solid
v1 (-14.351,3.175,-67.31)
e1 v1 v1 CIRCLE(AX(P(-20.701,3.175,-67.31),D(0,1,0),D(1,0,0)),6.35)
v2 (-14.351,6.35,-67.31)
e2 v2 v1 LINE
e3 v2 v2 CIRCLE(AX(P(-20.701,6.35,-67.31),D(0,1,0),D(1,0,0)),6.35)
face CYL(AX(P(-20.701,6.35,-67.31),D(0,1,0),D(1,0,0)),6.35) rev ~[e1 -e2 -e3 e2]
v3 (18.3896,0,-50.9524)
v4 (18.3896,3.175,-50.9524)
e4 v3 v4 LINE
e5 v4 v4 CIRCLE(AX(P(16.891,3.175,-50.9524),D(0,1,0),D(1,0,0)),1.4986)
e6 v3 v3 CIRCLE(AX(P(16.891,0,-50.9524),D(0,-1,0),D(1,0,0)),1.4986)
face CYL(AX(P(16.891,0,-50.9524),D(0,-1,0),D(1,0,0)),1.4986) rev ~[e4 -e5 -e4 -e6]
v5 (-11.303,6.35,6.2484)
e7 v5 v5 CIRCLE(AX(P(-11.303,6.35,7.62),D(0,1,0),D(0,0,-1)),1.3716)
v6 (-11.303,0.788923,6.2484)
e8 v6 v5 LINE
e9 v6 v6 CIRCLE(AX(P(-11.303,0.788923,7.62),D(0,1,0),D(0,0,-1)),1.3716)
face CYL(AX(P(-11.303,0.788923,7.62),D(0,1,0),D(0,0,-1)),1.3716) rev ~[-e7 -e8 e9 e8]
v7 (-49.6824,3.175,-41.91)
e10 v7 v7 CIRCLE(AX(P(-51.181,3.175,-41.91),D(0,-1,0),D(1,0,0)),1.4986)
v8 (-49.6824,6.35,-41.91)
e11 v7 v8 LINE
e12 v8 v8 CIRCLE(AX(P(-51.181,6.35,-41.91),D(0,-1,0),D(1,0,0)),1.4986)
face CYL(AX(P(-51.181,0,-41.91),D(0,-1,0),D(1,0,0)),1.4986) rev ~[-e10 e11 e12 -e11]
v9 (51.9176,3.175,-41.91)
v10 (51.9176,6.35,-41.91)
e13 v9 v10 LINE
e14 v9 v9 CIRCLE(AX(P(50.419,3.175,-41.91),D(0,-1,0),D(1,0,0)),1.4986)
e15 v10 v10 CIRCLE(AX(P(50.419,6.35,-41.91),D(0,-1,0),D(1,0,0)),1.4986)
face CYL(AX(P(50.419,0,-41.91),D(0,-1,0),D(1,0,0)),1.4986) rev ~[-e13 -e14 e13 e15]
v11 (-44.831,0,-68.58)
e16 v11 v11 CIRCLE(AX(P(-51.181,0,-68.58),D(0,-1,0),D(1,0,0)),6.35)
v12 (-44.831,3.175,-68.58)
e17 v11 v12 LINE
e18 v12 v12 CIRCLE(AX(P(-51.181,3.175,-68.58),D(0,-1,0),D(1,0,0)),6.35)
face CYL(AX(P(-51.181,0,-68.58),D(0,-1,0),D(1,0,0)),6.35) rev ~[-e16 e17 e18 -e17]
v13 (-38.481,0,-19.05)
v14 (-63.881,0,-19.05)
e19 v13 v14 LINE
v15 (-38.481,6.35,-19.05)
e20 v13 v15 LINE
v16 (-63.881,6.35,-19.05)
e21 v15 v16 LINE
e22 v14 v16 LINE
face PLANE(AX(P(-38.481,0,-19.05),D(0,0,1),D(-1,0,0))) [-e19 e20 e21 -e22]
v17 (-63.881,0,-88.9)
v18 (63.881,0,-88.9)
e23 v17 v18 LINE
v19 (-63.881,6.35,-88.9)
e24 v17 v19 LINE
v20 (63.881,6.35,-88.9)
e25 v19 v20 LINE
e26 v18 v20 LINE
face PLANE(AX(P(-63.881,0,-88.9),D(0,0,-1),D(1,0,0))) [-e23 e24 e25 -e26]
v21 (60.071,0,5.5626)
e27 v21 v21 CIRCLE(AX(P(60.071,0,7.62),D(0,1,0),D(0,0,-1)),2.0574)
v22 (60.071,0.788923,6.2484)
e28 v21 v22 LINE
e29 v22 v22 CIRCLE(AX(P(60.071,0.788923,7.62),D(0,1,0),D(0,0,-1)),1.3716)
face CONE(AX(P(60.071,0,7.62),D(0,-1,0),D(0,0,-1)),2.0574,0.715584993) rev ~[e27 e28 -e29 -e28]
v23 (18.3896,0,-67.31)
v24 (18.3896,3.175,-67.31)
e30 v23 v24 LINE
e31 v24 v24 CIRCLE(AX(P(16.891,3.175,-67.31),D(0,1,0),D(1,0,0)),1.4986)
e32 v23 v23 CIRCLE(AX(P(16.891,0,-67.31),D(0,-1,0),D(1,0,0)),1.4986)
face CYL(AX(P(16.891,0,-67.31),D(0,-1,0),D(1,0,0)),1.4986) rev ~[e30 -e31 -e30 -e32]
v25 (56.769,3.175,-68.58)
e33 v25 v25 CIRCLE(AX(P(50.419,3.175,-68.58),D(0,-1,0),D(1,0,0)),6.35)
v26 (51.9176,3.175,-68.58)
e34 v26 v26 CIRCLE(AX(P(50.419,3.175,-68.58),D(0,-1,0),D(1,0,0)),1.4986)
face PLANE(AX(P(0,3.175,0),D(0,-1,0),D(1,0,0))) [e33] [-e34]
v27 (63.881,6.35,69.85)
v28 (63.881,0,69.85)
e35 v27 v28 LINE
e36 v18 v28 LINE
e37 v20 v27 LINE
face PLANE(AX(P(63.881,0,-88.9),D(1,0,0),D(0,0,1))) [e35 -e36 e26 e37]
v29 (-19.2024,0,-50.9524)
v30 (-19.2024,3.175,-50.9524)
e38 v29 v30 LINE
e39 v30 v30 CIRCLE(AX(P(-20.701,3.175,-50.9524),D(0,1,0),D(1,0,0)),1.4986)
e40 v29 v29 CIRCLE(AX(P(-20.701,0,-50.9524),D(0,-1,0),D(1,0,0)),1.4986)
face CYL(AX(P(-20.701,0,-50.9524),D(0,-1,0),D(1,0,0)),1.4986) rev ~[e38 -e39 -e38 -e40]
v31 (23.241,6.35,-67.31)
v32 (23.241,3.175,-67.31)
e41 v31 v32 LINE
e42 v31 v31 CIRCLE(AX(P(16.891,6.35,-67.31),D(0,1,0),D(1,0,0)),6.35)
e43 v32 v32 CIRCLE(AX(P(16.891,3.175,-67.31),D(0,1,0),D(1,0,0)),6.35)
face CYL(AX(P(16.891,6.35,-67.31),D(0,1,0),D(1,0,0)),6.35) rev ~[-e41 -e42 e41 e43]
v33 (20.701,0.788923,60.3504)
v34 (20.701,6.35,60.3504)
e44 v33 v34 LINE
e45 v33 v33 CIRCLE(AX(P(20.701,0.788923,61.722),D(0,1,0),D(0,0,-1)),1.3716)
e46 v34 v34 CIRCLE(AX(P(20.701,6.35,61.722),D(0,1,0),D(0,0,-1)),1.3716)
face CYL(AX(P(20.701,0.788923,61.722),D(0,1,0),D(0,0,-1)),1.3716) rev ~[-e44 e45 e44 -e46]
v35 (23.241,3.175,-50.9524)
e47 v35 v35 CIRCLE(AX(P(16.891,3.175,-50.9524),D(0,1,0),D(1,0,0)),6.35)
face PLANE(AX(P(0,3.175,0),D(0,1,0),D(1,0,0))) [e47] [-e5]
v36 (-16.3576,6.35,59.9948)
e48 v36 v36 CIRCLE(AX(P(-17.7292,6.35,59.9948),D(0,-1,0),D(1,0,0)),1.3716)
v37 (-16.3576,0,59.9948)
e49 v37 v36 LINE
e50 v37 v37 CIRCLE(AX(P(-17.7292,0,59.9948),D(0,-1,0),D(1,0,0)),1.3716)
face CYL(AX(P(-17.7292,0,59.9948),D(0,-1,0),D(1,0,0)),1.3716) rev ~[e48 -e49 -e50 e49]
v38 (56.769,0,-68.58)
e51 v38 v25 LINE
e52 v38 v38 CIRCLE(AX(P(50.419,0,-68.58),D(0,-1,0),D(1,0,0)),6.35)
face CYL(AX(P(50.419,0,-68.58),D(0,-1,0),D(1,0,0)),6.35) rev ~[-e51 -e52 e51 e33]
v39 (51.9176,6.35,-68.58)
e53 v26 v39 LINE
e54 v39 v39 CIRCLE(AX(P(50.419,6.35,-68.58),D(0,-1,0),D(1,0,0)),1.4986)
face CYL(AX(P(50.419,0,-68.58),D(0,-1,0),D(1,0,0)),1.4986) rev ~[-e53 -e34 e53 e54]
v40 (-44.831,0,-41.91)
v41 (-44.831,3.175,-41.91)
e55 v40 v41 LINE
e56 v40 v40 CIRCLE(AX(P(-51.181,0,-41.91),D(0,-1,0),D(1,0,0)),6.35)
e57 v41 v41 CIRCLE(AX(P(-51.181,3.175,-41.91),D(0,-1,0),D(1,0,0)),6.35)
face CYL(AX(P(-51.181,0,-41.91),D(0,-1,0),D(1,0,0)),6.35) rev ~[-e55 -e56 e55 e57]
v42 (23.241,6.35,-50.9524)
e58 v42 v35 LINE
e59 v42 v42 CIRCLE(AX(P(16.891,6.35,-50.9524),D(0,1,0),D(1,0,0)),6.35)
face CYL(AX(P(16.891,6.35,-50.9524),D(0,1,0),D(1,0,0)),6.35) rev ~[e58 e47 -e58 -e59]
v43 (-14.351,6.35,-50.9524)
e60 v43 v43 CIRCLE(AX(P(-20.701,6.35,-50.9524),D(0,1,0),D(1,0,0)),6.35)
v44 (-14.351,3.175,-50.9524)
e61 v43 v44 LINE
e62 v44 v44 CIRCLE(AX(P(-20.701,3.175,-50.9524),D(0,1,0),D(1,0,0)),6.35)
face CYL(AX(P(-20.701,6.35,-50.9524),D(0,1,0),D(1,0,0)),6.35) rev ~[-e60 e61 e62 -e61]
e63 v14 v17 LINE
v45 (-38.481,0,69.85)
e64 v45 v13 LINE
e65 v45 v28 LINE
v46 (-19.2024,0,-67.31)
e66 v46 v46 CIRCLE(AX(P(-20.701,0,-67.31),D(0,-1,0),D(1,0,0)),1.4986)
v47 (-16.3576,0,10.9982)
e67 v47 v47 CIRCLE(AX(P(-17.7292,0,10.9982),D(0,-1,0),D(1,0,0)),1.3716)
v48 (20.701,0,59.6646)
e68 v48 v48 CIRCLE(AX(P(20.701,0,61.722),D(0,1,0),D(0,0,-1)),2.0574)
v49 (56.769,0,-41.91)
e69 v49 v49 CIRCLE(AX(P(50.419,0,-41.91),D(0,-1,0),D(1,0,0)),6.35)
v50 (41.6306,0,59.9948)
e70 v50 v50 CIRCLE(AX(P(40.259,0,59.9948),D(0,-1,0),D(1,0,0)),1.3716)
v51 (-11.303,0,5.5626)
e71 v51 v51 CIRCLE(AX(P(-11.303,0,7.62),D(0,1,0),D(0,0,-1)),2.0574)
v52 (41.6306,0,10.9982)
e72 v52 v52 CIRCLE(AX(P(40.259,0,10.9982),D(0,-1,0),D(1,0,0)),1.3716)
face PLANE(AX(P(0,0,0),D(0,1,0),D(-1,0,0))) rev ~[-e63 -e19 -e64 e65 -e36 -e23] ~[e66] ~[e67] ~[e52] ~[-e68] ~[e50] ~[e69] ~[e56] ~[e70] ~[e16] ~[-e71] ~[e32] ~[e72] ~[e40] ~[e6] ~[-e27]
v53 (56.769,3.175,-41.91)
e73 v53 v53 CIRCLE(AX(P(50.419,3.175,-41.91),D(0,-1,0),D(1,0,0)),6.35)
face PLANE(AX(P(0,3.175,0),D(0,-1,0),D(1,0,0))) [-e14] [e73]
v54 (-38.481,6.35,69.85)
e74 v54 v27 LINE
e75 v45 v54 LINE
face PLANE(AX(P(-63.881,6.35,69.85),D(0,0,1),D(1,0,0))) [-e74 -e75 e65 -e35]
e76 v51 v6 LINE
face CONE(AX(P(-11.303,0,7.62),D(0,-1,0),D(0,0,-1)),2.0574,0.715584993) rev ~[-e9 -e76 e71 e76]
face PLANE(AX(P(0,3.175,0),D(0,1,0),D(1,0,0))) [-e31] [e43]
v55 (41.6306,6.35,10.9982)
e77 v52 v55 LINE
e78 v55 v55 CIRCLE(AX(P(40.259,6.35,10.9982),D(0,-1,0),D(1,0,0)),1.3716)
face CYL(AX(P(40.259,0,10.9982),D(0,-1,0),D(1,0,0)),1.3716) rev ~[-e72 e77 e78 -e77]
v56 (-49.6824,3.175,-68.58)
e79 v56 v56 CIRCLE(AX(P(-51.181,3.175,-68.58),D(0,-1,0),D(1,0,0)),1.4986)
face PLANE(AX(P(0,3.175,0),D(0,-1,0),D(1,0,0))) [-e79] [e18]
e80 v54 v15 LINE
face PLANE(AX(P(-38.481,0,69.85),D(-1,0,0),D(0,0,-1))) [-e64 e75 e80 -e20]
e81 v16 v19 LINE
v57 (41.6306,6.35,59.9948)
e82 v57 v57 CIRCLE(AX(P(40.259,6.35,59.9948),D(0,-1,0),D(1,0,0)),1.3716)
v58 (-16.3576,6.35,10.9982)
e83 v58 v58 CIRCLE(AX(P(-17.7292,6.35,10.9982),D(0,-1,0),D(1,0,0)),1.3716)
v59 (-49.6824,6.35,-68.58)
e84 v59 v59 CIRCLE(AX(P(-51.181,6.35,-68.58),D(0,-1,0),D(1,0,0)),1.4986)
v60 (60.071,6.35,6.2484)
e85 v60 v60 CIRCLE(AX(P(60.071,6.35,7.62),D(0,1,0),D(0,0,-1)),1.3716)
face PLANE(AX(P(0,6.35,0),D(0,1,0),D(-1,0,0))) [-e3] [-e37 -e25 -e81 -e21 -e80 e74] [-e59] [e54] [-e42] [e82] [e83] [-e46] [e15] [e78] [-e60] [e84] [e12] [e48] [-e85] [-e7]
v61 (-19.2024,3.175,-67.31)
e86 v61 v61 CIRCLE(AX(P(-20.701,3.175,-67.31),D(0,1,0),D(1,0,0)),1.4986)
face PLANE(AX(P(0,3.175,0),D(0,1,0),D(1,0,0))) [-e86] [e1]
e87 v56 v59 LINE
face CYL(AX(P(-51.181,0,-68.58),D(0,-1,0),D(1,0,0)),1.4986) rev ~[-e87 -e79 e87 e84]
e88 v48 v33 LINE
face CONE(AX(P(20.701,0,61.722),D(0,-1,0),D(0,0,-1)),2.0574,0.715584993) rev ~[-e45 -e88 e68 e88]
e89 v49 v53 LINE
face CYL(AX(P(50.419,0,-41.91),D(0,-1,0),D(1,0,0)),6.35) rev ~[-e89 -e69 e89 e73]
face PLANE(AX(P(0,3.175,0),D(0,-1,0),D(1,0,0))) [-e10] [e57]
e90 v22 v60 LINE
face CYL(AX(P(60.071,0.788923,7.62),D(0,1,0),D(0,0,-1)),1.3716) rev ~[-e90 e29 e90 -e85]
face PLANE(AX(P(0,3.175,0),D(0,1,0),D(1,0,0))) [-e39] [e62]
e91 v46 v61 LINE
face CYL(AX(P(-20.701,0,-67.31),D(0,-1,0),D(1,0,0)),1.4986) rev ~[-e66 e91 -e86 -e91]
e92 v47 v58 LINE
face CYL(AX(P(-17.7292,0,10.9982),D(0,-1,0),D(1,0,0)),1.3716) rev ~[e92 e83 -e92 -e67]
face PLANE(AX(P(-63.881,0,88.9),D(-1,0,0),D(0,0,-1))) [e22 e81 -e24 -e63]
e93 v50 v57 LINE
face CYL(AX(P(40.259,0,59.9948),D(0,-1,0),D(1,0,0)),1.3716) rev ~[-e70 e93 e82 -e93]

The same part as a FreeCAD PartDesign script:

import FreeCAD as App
import Part
import Sketcher

V = App.Vector
Q = App.Units.Quantity


def add_polygon(sketch, points):
    """Adds a closed chain of lines whose ends are joined by coincident constraints."""
    first, n = sketch.GeometryCount, len(points)
    for a, b in zip(points, points[1:] + points[:1]):
        sketch.addGeometry(Part.LineSegment(App.Vector(*a, 0), App.Vector(*b, 0)), False)
    for i in range(n):
        sketch.addConstraint(Sketcher.Constraint("Coincident", first + i, 2, first + (i + 1) % n, 1))

doc = App.newDocument("Part")
body = doc.addObject("PartDesign::Body", "Body")

# Sketch on XZ plane
sketch1 = body.newObject("Sketcher::SketchObject", "Sketch")
sketch1.AttachmentSupport = (doc.getObject("XZ_Plane"), [""])
sketch1.MapMode = "FlatFace"
add_polygon(sketch1, [(-63.881, 88.9), (63.881, 88.9), (63.881, -88.9), (-63.881, -88.9)])  # lines 0-3
sketch1.addConstraint([
    Sketcher.Constraint("Horizontal", 0),
    Sketcher.Constraint("Vertical", 1),
    Sketcher.Constraint("Horizontal", 2),
    Sketcher.Constraint("Vertical", 3),
    Sketcher.Constraint("Symmetric", 0, 2, 2, 2, -1, 1),
    Sketcher.Constraint("DistanceY", 1, 2, 1, 1, Q("7 in")),
    Sketcher.Constraint("DistanceX", 0, 1, 0, 2, Q("5.03 in")),
])
pad1 = body.newObject("PartDesign::Pad", "Pad")
pad1.Profile = sketch1
pad1.Length = Q("0.25 in")
pad1.Reversed = True

# Sketch on XZ plane
sketch2 = body.newObject("Sketcher::SketchObject", "Sketch001")
sketch2.AttachmentSupport = (doc.getObject("XZ_Plane"), [""])
sketch2.MapMode = "FlatFace"
add_polygon(sketch2, [(63.881, 76.2), (63.881, 88.9), (-63.881, 88.9), (-63.881, 76.2)])  # lines 0-3
sketch2.addConstraint([
    Sketcher.Constraint("Vertical", 0),
    Sketcher.Constraint("Horizontal", 1),
    Sketcher.Constraint("Vertical", 2),
    Sketcher.Constraint("Horizontal", 3),
    Sketcher.Constraint("DistanceY", 0, 1, 0, 2, Q("0.5 in")),
    Sketcher.Constraint("DistanceY", -1, 1, 2, 2, Q("3 in")),
    Sketcher.Constraint("DistanceX", 1, 2, 1, 1, Q("5.03 in")),
    Sketcher.Constraint("DistanceX", -1, 1, 0, 2, Q("2.515 in")),
])
pocket1 = body.newObject("PartDesign::Pocket", "Pocket")
pocket1.Profile = sketch2
pocket1.Length = Q("0.25 in")

# Sketch on XZ plane
sketch3 = body.newObject("Sketcher::SketchObject", "Sketch002")
sketch3.AttachmentSupport = (doc.getObject("XZ_Plane"), [""])
sketch3.MapMode = "FlatFace"
sketch3.AttachmentOffset = App.Placement(V(0, 0, -0.25 * 25.4), App.Rotation())
add_polygon(sketch3, [(-63.881, 69.85), (-63.881, 76.2), (63.881, 76.2), (63.881, 69.85)])  # lines 0-3
sketch3.addConstraint([
    Sketcher.Constraint("Vertical", 0),
    Sketcher.Constraint("Horizontal", 1),
    Sketcher.Constraint("Vertical", 2),
    Sketcher.Constraint("Horizontal", 3),
    Sketcher.Constraint("DistanceY", 0, 1, 0, 2, Q("0.25 in")),
    Sketcher.Constraint("DistanceY", -1, 1, 0, 2, Q("3 in")),
    Sketcher.Constraint("DistanceX", 1, 1, 1, 2, Q("5.03 in")),
    Sketcher.Constraint("DistanceX", 0, 2, -1, 1, Q("2.515 in")),
])
pocket2 = body.newObject("PartDesign::Pocket", "Pocket001")
pocket2.Profile = sketch3
pocket2.Length = Q("1 in")
pocket2.Reversed = True

# Sketch on XZ plane
sketch4 = body.newObject("Sketcher::SketchObject", "Sketch003")
sketch4.AttachmentSupport = (doc.getObject("XZ_Plane"), [""])
sketch4.MapMode = "FlatFace"
sketch4.addGeometry([
    Part.Circle(V(-20.701, -67.31, 0), V(0, 0, 1), 1.4986),
    Part.Circle(V(-20.701, -50.9524, 0), V(0, 0, 1), 1.4986),
    Part.Circle(V(16.891, -50.9524, 0), V(0, 0, 1), 1.4986),
    Part.Circle(V(16.891, -67.31, 0), V(0, 0, 1), 1.4986),
], False)
sketch4.addConstraint([
    Sketcher.Constraint("Equal", 0, 1),
    Sketcher.Constraint("Equal", 1, 2),
    Sketcher.Constraint("Equal", 2, 3),
    Sketcher.Constraint("Horizontal", 1, 3, 2, 3),
    Sketcher.Constraint("Horizontal", 0, 3, 3, 3),
    Sketcher.Constraint("Vertical", 0, 3, 1, 3),
    Sketcher.Constraint("Vertical", 2, 3, 3, 3),
    Sketcher.Constraint("Diameter", 0, Q("0.118 in")),
    Sketcher.Constraint("DistanceY", 0, 3, -1, 1, Q("2.65 in")),
    Sketcher.Constraint("DistanceX", 1, 3, 2, 3, Q("1.48 in")),
    Sketcher.Constraint("DistanceX", 0, 3, -1, 1, Q("0.815 in")),
    Sketcher.Constraint("DistanceY", 1, 3, -1, 1, Q("2.006 in")),
])
pocket3 = body.newObject("PartDesign::Pocket", "Pocket002")
pocket3.Profile = sketch4
pocket3.Length = Q("1 in")

# Sketch on XZ plane
sketch5 = body.newObject("Sketcher::SketchObject", "Sketch004")
sketch5.AttachmentSupport = (doc.getObject("XZ_Plane"), [""])
sketch5.MapMode = "FlatFace"
sketch5.AttachmentOffset = App.Placement(V(0, 0, -0.25 * 25.4), App.Rotation())
sketch5.addGeometry([
    Part.Circle(V(-20.701, -67.31, 0), V(0, 0, 1), 6.35),  # 0
    Part.Circle(V(-20.701, -67.31, 0), V(0, 0, 1), 1.4986),  # 1
    Part.Circle(V(16.891, -67.31, 0), V(0, 0, 1), 6.35),  # 2
    Part.Circle(V(16.891, -67.31, 0), V(0, 0, 1), 1.4986),  # 3
    Part.Circle(V(16.891, -50.9524, 0), V(0, 0, 1), 6.35),  # 4
    Part.Circle(V(16.891, -50.9524, 0), V(0, 0, 1), 1.4986),  # 5
    Part.Circle(V(-20.701, -50.9524, 0), V(0, 0, 1), 6.35),  # 6
    Part.Circle(V(-20.701, -50.9524, 0), V(0, 0, 1), 1.4986),  # 7
], False)
sketch5.addConstraint([
    Sketcher.Constraint("Coincident", 1, 3, 0, 3),
    Sketcher.Constraint("Coincident", 3, 3, 2, 3),
    Sketcher.Constraint("Coincident", 5, 3, 4, 3),
    Sketcher.Constraint("Coincident", 7, 3, 6, 3),
    Sketcher.Constraint("Equal", 0, 2),
    Sketcher.Constraint("Equal", 1, 3),
    Sketcher.Constraint("Equal", 2, 4),
    Sketcher.Constraint("Equal", 3, 5),
    Sketcher.Constraint("Equal", 4, 6),
    Sketcher.Constraint("Equal", 5, 7),
    Sketcher.Constraint("Horizontal", 1, 3, 2, 3),
    Sketcher.Constraint("Horizontal", 5, 3, 6, 3),
    Sketcher.Constraint("Vertical", 3, 3, 4, 3),
    Sketcher.Constraint("Vertical", 1, 3, 6, 3),
    Sketcher.Constraint("Diameter", 0, Q("0.5 in")),
    Sketcher.Constraint("Diameter", 1, Q("0.118 in")),
    Sketcher.Constraint("DistanceY", 0, 3, -1, 1, Q("2.65 in")),
    Sketcher.Constraint("DistanceX", 0, 3, 2, 3, Q("1.48 in")),
    Sketcher.Constraint("DistanceX", 0, 3, -1, 1, Q("0.815 in")),
    Sketcher.Constraint("DistanceY", 4, 3, -1, 1, Q("2.006 in")),
])
pocket4 = body.newObject("PartDesign::Pocket", "Pocket003")
pocket4.Profile = sketch5
pocket4.Length = Q("0.125 in")
pocket4.Reversed = True

# Sketch on XZ plane
sketch6 = body.newObject("Sketcher::SketchObject", "Sketch005")
sketch6.AttachmentSupport = (doc.getObject("XZ_Plane"), [""])
sketch6.MapMode = "FlatFace"
sketch6.addGeometry([
    Part.Circle(V(-51.181, -41.91, 0), V(0, 0, 1), 1.4986),
    Part.Circle(V(50.419, -41.91, 0), V(0, 0, 1), 1.4986),
    Part.Circle(V(50.419, -68.58, 0), V(0, 0, 1), 1.4986),
    Part.Circle(V(-51.181, -68.58, 0), V(0, 0, 1), 1.4986),
], False)
sketch6.addConstraint([
    Sketcher.Constraint("Equal", 0, 1),
    Sketcher.Constraint("Equal", 1, 2),
    Sketcher.Constraint("Equal", 2, 3),
    Sketcher.Constraint("Horizontal", 0, 3, 1, 3),
    Sketcher.Constraint("Horizontal", 2, 3, 3, 3),
    Sketcher.Constraint("Vertical", 1, 3, 2, 3),
    Sketcher.Constraint("Vertical", 0, 3, 3, 3),
    Sketcher.Constraint("Diameter", 0, Q("0.118 in")),
    Sketcher.Constraint("DistanceX", 0, 3, 1, 3, Q("4 in")),
    Sketcher.Constraint("DistanceY", 2, 3, -1, 1, Q("2.7 in")),
    Sketcher.Constraint("DistanceY", 0, 3, -1, 1, Q("1.65 in")),
    Sketcher.Constraint("DistanceX", 0, 3, -1, 1, Q("2.015 in")),
])
pocket5 = body.newObject("PartDesign::Pocket", "Pocket004")
pocket5.Profile = sketch6
pocket5.Length = Q("0.25 in")

# Sketch on XZ plane
sketch7 = body.newObject("Sketcher::SketchObject", "Sketch006")
sketch7.AttachmentSupport = (doc.getObject("XZ_Plane"), [""])
sketch7.MapMode = "FlatFace"
sketch7.addGeometry([
    Part.Circle(V(-51.181, -41.91, 0), V(0, 0, 1), 6.35),  # 0
    Part.Circle(V(-51.181, -41.91, 0), V(0, 0, 1), 1.4986),  # 1
    Part.Circle(V(-51.181, -68.58, 0), V(0, 0, 1), 6.35),  # 2
    Part.Circle(V(-51.181, -68.58, 0), V(0, 0, 1), 1.4986),  # 3
    Part.Circle(V(50.419, -68.58, 0), V(0, 0, 1), 6.35),  # 4
    Part.Circle(V(50.419, -68.58, 0), V(0, 0, 1), 1.4986),  # 5
    Part.Circle(V(50.419, -41.91, 0), V(0, 0, 1), 6.35),  # 6
    Part.Circle(V(50.419, -41.91, 0), V(0, 0, 1), 1.4986),  # 7
], False)
sketch7.addConstraint([
    Sketcher.Constraint("Coincident", 1, 3, 0, 3),
    Sketcher.Constraint("Coincident", 3, 3, 2, 3),
    Sketcher.Constraint("Coincident", 5, 3, 4, 3),
    Sketcher.Constraint("Coincident", 7, 3, 6, 3),
    Sketcher.Constraint("Equal", 0, 2),
    Sketcher.Constraint("Equal", 1, 3),
    Sketcher.Constraint("Equal", 2, 4),
    Sketcher.Constraint("Equal", 3, 5),
    Sketcher.Constraint("Equal", 4, 6),
    Sketcher.Constraint("Equal", 5, 7),
    Sketcher.Constraint("Horizontal", 3, 3, 4, 3),
    Sketcher.Constraint("Horizontal", 1, 3, 6, 3),
    Sketcher.Constraint("Vertical", 1, 3, 2, 3),
    Sketcher.Constraint("Vertical", 5, 3, 6, 3),
    Sketcher.Constraint("Diameter", 0, Q("0.5 in")),
    Sketcher.Constraint("Diameter", 1, Q("0.118 in")),
    Sketcher.Constraint("DistanceX", 2, 3, 4, 3, Q("4 in")),
    Sketcher.Constraint("DistanceY", 2, 3, -1, 1, Q("2.7 in")),
    Sketcher.Constraint("DistanceY", 0, 3, -1, 1, Q("1.65 in")),
    Sketcher.Constraint("DistanceX", 0, 3, -1, 1, Q("2.015 in")),
])
pocket6 = body.newObject("PartDesign::Pocket", "Pocket005")
pocket6.Profile = sketch7
pocket6.Length = Q("0.125 in")

# Sketch on XZ plane
sketch8 = body.newObject("Sketcher::SketchObject", "Sketch007")
sketch8.AttachmentSupport = (doc.getObject("XZ_Plane"), [""])
sketch8.MapMode = "FlatFace"
add_polygon(sketch8, [(-63.881, 69.85), (-63.881, -19.05), (-38.481, -19.05), (-38.481, 69.85)])  # lines 0-3
sketch8.addConstraint([
    Sketcher.Constraint("Vertical", 0),
    Sketcher.Constraint("Horizontal", 1),
    Sketcher.Constraint("Vertical", 2),
    Sketcher.Constraint("Horizontal", 3),
    Sketcher.Constraint("DistanceX", 1, 1, 1, 2, Q("1 in")),
    Sketcher.Constraint("DistanceY", 0, 2, 0, 1, Q("3.5 in")),
    Sketcher.Constraint("DistanceY", 0, 2, -1, 1, Q("0.75 in")),
    Sketcher.Constraint("DistanceX", 0, 2, -1, 1, Q("2.515 in")),
])
pocket7 = body.newObject("PartDesign::Pocket", "Pocket006")
pocket7.Profile = sketch8
pocket7.Length = Q("0.25 in")

# Sketch on XZ plane
sketch9 = body.newObject("Sketcher::SketchObject", "Sketch008")
sketch9.AttachmentSupport = (doc.getObject("XZ_Plane"), [""])
sketch9.MapMode = "FlatFace"
sketch9.addGeometry([
    Part.Circle(V(40.259, 59.9948, 0), V(0, 0, 1), 1.3716),
    Part.Circle(V(-17.7292, 59.9948, 0), V(0, 0, 1), 1.3716),
    Part.Circle(V(-17.7292, 10.9982, 0), V(0, 0, 1), 1.3716),
    Part.Circle(V(40.259, 10.9982, 0), V(0, 0, 1), 1.3716),
], False)
sketch9.addConstraint([
    Sketcher.Constraint("Equal", 0, 1),
    Sketcher.Constraint("Equal", 1, 2),
    Sketcher.Constraint("Equal", 2, 3),
    Sketcher.Constraint("Horizontal", 0, 3, 1, 3),
    Sketcher.Constraint("Horizontal", 2, 3, 3, 3),
    Sketcher.Constraint("Vertical", 1, 3, 2, 3),
    Sketcher.Constraint("Vertical", 0, 3, 3, 3),
    Sketcher.Constraint("Diameter", 0, Q("0.108 in")),
    Sketcher.Constraint("DistanceX", -1, 1, 0, 3, Q("1.585 in")),
    Sketcher.Constraint("DistanceY", -1, 1, 0, 3, Q("2.362 in")),
    Sketcher.Constraint("DistanceX", 1, 3, -1, 1, Q("0.698 in")),
    Sketcher.Constraint("DistanceY", -1, 1, 2, 3, Q("0.433 in")),
])
pocket8 = body.newObject("PartDesign::Pocket", "Pocket007")
pocket8.Profile = sketch9
pocket8.Length = Q("1 in")

# Sketch on XZ plane
sketch10 = body.newObject("Sketcher::SketchObject", "Sketch009")
sketch10.AttachmentSupport = (doc.getObject("XZ_Plane"), [""])
sketch10.MapMode = "FlatFace"
sketch10.addGeometry([
    Part.Circle(V(20.701, 61.722, 0), V(0, 0, 1), 1.3716),
    Part.Circle(V(60.071, 7.62, 0), V(0, 0, 1), 1.3716),
    Part.Circle(V(-11.303, 7.62, 0), V(0, 0, 1), 1.3716),
], False)
sketch10.addConstraint([
    Sketcher.Constraint("Equal", 0, 1),
    Sketcher.Constraint("Equal", 1, 2),
    Sketcher.Constraint("Horizontal", 1, 3, 2, 3),
    Sketcher.Constraint("Diameter", 0, Q("0.108 in")),
    Sketcher.Constraint("DistanceY", -1, 1, 1, 3, Q("0.3 in")),
    Sketcher.Constraint("DistanceY", -1, 1, 0, 3, Q("2.43 in")),
    Sketcher.Constraint("DistanceX", 0, 3, 1, 3, Q("1.55 in")),
    Sketcher.Constraint("DistanceX", 2, 3, 0, 3, Q("1.26 in")),
    Sketcher.Constraint("DistanceX", -1, 1, 0, 3, Q("0.815 in")),
])
doc.recompute()
hole = body.newObject("PartDesign::Hole", "Hole")
hole.Profile = sketch10
hole.ThreadType = "None"
hole.Diameter = Q("0.108 in")
hole.DepthType = "Dimension"
hole.Depth = Q("0.25 in")
hole.DrillPoint = "Flat"
hole.HoleCutType = "Countersink"
hole.HoleCutDiameter = Q("0.162 in")
hole.HoleCutCountersinkAngle = 82

doc.recompute()
